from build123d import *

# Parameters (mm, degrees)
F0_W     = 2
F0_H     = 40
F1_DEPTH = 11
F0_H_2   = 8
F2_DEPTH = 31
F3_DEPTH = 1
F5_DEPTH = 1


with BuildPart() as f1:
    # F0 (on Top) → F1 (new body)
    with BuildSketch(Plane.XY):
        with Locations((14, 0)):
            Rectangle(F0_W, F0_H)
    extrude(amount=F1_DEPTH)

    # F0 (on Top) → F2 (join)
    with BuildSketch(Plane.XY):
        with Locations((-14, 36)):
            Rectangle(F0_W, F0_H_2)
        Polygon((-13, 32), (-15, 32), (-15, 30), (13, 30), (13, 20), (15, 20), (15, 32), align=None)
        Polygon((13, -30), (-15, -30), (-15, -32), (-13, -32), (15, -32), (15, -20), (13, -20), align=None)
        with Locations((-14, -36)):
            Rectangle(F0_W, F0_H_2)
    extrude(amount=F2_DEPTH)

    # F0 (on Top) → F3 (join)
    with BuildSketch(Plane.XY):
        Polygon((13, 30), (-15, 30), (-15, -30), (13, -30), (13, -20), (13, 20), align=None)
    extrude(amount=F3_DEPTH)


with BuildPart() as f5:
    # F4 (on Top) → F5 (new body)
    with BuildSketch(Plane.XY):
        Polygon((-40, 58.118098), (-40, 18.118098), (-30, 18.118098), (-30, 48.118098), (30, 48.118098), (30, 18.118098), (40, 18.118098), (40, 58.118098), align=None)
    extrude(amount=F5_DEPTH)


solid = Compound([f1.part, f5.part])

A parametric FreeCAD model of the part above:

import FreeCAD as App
import Part
import Sketcher
from FreeCAD import Vector
Q = App.Units.Quantity

doc = App.newDocument("Part")
body = doc.addObject("PartDesign::Body", "Body")

# Sketch on XY plane
sketch1 = body.newObject("Sketcher::SketchObject", "Sketch")
sketch1.AttachmentSupport = (doc.getObject("XY_Plane"), [""])
sketch1.MapMode = "FlatFace"
sketch1.addGeometry(Part.LineSegment(Vector(13, 20, 0), Vector(13, -20, 0)), False)
sketch1.addGeometry(Part.LineSegment(Vector(13, -20, 0), Vector(15, -20, 0)), False)
sketch1.addGeometry(Part.LineSegment(Vector(15, -20, 0), Vector(15, 20, 0)), False)
sketch1.addGeometry(Part.LineSegment(Vector(15, 20, 0), Vector(13, 20, 0)), False)
sketch1.addConstraint(Sketcher.Constraint("Coincident", 0, 2, 1, 1))
sketch1.addConstraint(Sketcher.Constraint("Coincident", 1, 2, 2, 1))
sketch1.addConstraint(Sketcher.Constraint("Coincident", 2, 2, 3, 1))
sketch1.addConstraint(Sketcher.Constraint("Coincident", 3, 2, 0, 1))
sketch1.addConstraint(Sketcher.Constraint("Vertical", 0))
sketch1.addConstraint(Sketcher.Constraint("Horizontal", 1))
sketch1.addConstraint(Sketcher.Constraint("Vertical", 2))
sketch1.addConstraint(Sketcher.Constraint("Horizontal", 3))
sketch1.addConstraint(Sketcher.Constraint("DistanceX", 1, 1, 1, 2, Q("2 mm")))
sketch1.addConstraint(Sketcher.Constraint("DistanceY", 0, 2, 0, 1, Q("40 mm")))
sketch1.addConstraint(Sketcher.Constraint("DistanceX", -1, 1, 0, 2, Q("13 mm")))
sketch1.addConstraint(Sketcher.Constraint("DistanceY", 0, 2, -1, 1, Q("20 mm")))
pad1 = body.newObject("PartDesign::Pad", "Pad")
pad1.Profile = sketch1
pad1.Length = 11

# Sketch on XY plane
sketch2 = body.newObject("Sketcher::SketchObject", "Sketch001")
sketch2.AttachmentSupport = (doc.getObject("XY_Plane"), [""])
sketch2.MapMode = "FlatFace"
sketch2.addGeometry(Part.LineSegment(Vector(-15, 40, 0), Vector(-15, 30, 0)), False)
sketch2.addGeometry(Part.LineSegment(Vector(-15, 30, 0), Vector(13, 30, 0)), False)
sketch2.addGeometry(Part.LineSegment(Vector(13, 30, 0), Vector(13, 20, 0)), False)
sketch2.addGeometry(Part.LineSegment(Vector(13, 20, 0), Vector(15, 20, 0)), False)
sketch2.addGeometry(Part.LineSegment(Vector(15, 20, 0), Vector(15, 32, 0)), False)
sketch2.addGeometry(Part.LineSegment(Vector(15, 32, 0), Vector(-13, 32, 0)), False)
sketch2.addGeometry(Part.LineSegment(Vector(-13, 32, 0), Vector(-13, 40, 0)), False)
sketch2.addGeometry(Part.LineSegment(Vector(-13, 40, 0), Vector(-15, 40, 0)), False)
sketch2.addGeometry(Part.LineSegment(Vector(13, -30, 0), Vector(-15, -30, 0)), False)
sketch2.addGeometry(Part.LineSegment(Vector(-15, -30, 0), Vector(-15, -40, 0)), False)
sketch2.addGeometry(Part.LineSegment(Vector(-15, -40, 0), Vector(-13, -40, 0)), False)
sketch2.addGeometry(Part.LineSegment(Vector(-13, -40, 0), Vector(-13, -32, 0)), False)
sketch2.addGeometry(Part.LineSegment(Vector(-13, -32, 0), Vector(15, -32, 0)), False)
sketch2.addGeometry(Part.LineSegment(Vector(15, -32, 0), Vector(15, -20, 0)), False)
sketch2.addGeometry(Part.LineSegment(Vector(15, -20, 0), Vector(13, -20, 0)), False)
sketch2.addGeometry(Part.LineSegment(Vector(13, -20, 0), Vector(13, -30, 0)), False)
sketch2.addConstraint(Sketcher.Constraint("Coincident", 0, 2, 1, 1))
sketch2.addConstraint(Sketcher.Constraint("Coincident", 1, 2, 2, 1))
sketch2.addConstraint(Sketcher.Constraint("Coincident", 2, 2, 3, 1))
sketch2.addConstraint(Sketcher.Constraint("Coincident", 3, 2, 4, 1))
sketch2.addConstraint(Sketcher.Constraint("Coincident", 4, 2, 5, 1))
sketch2.addConstraint(Sketcher.Constraint("Coincident", 5, 2, 6, 1))
sketch2.addConstraint(Sketcher.Constraint("Coincident", 6, 2, 7, 1))
sketch2.addConstraint(Sketcher.Constraint("Coincident", 7, 2, 0, 1))
sketch2.addConstraint(Sketcher.Constraint("Coincident", 8, 2, 9, 1))
sketch2.addConstraint(Sketcher.Constraint("Coincident", 9, 2, 10, 1))
sketch2.addConstraint(Sketcher.Constraint("Coincident", 10, 2, 11, 1))
sketch2.addConstraint(Sketcher.Constraint("Coincident", 11, 2, 12, 1))
sketch2.addConstraint(Sketcher.Constraint("Coincident", 12, 2, 13, 1))
sketch2.addConstraint(Sketcher.Constraint("Coincident", 13, 2, 14, 1))
sketch2.addConstraint(Sketcher.Constraint("Coincident", 14, 2, 15, 1))
sketch2.addConstraint(Sketcher.Constraint("Coincident", 15, 2, 8, 1))
sketch2.addConstraint(Sketcher.Constraint("Vertical", 0))
sketch2.addConstraint(Sketcher.Constraint("Horizontal", 1))
sketch2.addConstraint(Sketcher.Constraint("Vertical", 2))
sketch2.addConstraint(Sketcher.Constraint("Horizontal", 3))
sketch2.addConstraint(Sketcher.Constraint("Vertical", 4))
sketch2.addConstraint(Sketcher.Constraint("Horizontal", 5))
sketch2.addConstraint(Sketcher.Constraint("Vertical", 6))
sketch2.addConstraint(Sketcher.Constraint("Horizontal", 7))
sketch2.addConstraint(Sketcher.Constraint("Horizontal", 8))
sketch2.addConstraint(Sketcher.Constraint("Vertical", 9))
sketch2.addConstraint(Sketcher.Constraint("Horizontal", 10))
sketch2.addConstraint(Sketcher.Constraint("Vertical", 11))
sketch2.addConstraint(Sketcher.Constraint("Horizontal", 12))
sketch2.addConstraint(Sketcher.Constraint("Vertical", 13))
sketch2.addConstraint(Sketcher.Constraint("Horizontal", 14))
sketch2.addConstraint(Sketcher.Constraint("Vertical", 15))
sketch2.addConstraint(Sketcher.Constraint("Symmetric", 0, 2, 8, 2, -1))
sketch2.addConstraint(Sketcher.Constraint("Symmetric", 6, 2, 10, 2, -1))
sketch2.addConstraint(Sketcher.Constraint("Symmetric", 4, 2, 12, 2, -1))
sketch2.addConstraint(Sketcher.Constraint("Symmetric", 2, 2, 14, 2, -1))
sketch2.addConstraint(Sketcher.Constraint("Equal", 1, 5))
sketch2.addConstraint(Sketcher.Constraint("Equal", 0, 2))
sketch2.addConstraint(Sketcher.Constraint("DistanceX", 1, 1, 1, 2, Q("28 mm")))
sketch2.addConstraint(Sketcher.Constraint("DistanceX", 3, 1, 3, 2, Q("2 mm")))
sketch2.addConstraint(Sketcher.Constraint("DistanceY", 0, 2, 0, 1, Q("10 mm")))
sketch2.addConstraint(Sketcher.Constraint("DistanceY", 4, 1, 4, 2, Q("12 mm")))
sketch2.addConstraint(Sketcher.Constraint("DistanceX", 0, 2, -1, 1, Q("15 mm")))
sketch2.addConstraint(Sketcher.Constraint("DistanceY", -1, 1, 0, 2, Q("30 mm")))
pad2 = body.newObject("PartDesign::Pad", "Pad001")
pad2.Profile = sketch2
pad2.Length = 31

# Sketch on XY plane
sketch3 = body.newObject("Sketcher::SketchObject", "Sketch002")
sketch3.AttachmentSupport = (doc.getObject("XY_Plane"), [""])
sketch3.MapMode = "FlatFace"
sketch3.addGeometry(Part.LineSegment(Vector(13, 30, 0), Vector(-15, 30, 0)), False)
sketch3.addGeometry(Part.LineSegment(Vector(-15, 30, 0), Vector(-15, -30, 0)), False)
sketch3.addGeometry(Part.LineSegment(Vector(-15, -30, 0), Vector(13, -30, 0)), False)
sketch3.addGeometry(Part.LineSegment(Vector(13, -30, 0), Vector(13, 30, 0)), False)
sketch3.addConstraint(Sketcher.Constraint("Coincident", 0, 2, 1, 1))
sketch3.addConstraint(Sketcher.Constraint("Coincident", 1, 2, 2, 1))
sketch3.addConstraint(Sketcher.Constraint("Coincident", 2, 2, 3, 1))
sketch3.addConstraint(Sketcher.Constraint("Coincident", 3, 2, 0, 1))
sketch3.addConstraint(Sketcher.Constraint("Horizontal", 0))
sketch3.addConstraint(Sketcher.Constraint("Vertical", 1))
sketch3.addConstraint(Sketcher.Constraint("Horizontal", 2))
sketch3.addConstraint(Sketcher.Constraint("Vertical", 3))
sketch3.addConstraint(Sketcher.Constraint("DistanceX", 0, 2, 0, 1, Q("28 mm")))
sketch3.addConstraint(Sketcher.Constraint("DistanceY", 1, 2, 1, 1, Q("60 mm")))
sketch3.addConstraint(Sketcher.Constraint("DistanceX", 0, 2, -1, 1, Q("15 mm")))
sketch3.addConstraint(Sketcher.Constraint("DistanceY", -1, 1, 0, 2, Q("30 mm")))
pad3 = body.newObject("PartDesign::Pad", "Pad002")
pad3.Profile = sketch3
pad3.Length = 1
body2 = doc.addObject("PartDesign::Body", "Body001")

# Sketch on XY plane
sketch4 = body2.newObject("Sketcher::SketchObject", "Sketch003")
sketch4.AttachmentSupport = (doc.getObject("XY_Plane001"), [""])
sketch4.MapMode = "FlatFace"
sketch4.addGeometry(Part.LineSegment(Vector(-40, 58, 0), Vector(-40, 18, 0)), False)
sketch4.addGeometry(Part.LineSegment(Vector(-40, 18, 0), Vector(-30, 18, 0)), False)
sketch4.addGeometry(Part.LineSegment(Vector(-30, 18, 0), Vector(-30, 48, 0)), False)
sketch4.addGeometry(Part.LineSegment(Vector(-30, 48, 0), Vector(30, 48, 0)), False)
sketch4.addGeometry(Part.LineSegment(Vector(30, 48, 0), Vector(30, 18, 0)), False)
sketch4.addGeometry(Part.LineSegment(Vector(30, 18, 0), Vector(40, 18, 0)), False)
sketch4.addGeometry(Part.LineSegment(Vector(40, 18, 0), Vector(40, 58, 0)), False)
sketch4.addGeometry(Part.LineSegment(Vector(40, 58, 0), Vector(-40, 58, 0)), False)
sketch4.addConstraint(Sketcher.Constraint("Coincident", 0, 2, 1, 1))
sketch4.addConstraint(Sketcher.Constraint("Coincident", 1, 2, 2, 1))
sketch4.addConstraint(Sketcher.Constraint("Coincident", 2, 2, 3, 1))
sketch4.addConstraint(Sketcher.Constraint("Coincident", 3, 2, 4, 1))
sketch4.addConstraint(Sketcher.Constraint("Coincident", 4, 2, 5, 1))
sketch4.addConstraint(Sketcher.Constraint("Coincident", 5, 2, 6, 1))
sketch4.addConstraint(Sketcher.Constraint("Coincident", 6, 2, 7, 1))
sketch4.addConstraint(Sketcher.Constraint("Coincident", 7, 2, 0, 1))
sketch4.addConstraint(Sketcher.Constraint("Vertical", 0))
sketch4.addConstraint(Sketcher.Constraint("Horizontal", 1))
sketch4.addConstraint(Sketcher.Constraint("Vertical", 2))
sketch4.addConstraint(Sketcher.Constraint("Horizontal", 3))
sketch4.addConstraint(Sketcher.Constraint("Vertical", 4))
sketch4.addConstraint(Sketcher.Constraint("Horizontal", 5))
sketch4.addConstraint(Sketcher.Constraint("Vertical", 6))
sketch4.addConstraint(Sketcher.Constraint("Horizontal", 7))
sketch4.addConstraint(Sketcher.Constraint("Symmetric", 1, 2, 4, 2, -2))
sketch4.addConstraint(Sketcher.Constraint("Equal", 1, 5))
sketch4.addConstraint(Sketcher.Constraint("DistanceX", 1, 1, 1, 2, Q("10 mm")))
sketch4.addConstraint(Sketcher.Constraint("DistanceX", 3, 1, 3, 2, Q("60 mm")))
sketch4.addConstraint(Sketcher.Constraint("DistanceY", 0, 2, 0, 1, Q("40 mm")))
sketch4.addConstraint(Sketcher.Constraint("DistanceY", 2, 1, 2, 2, Q("30 mm")))
sketch4.addConstraint(Sketcher.Constraint("DistanceY", -1, 1, 0, 2, Q("18.118098 mm")))
pad4 = body2.newObject("PartDesign::Pad", "Pad003")
pad4.Profile = sketch4
pad4.Length = 1

doc.recompute()
